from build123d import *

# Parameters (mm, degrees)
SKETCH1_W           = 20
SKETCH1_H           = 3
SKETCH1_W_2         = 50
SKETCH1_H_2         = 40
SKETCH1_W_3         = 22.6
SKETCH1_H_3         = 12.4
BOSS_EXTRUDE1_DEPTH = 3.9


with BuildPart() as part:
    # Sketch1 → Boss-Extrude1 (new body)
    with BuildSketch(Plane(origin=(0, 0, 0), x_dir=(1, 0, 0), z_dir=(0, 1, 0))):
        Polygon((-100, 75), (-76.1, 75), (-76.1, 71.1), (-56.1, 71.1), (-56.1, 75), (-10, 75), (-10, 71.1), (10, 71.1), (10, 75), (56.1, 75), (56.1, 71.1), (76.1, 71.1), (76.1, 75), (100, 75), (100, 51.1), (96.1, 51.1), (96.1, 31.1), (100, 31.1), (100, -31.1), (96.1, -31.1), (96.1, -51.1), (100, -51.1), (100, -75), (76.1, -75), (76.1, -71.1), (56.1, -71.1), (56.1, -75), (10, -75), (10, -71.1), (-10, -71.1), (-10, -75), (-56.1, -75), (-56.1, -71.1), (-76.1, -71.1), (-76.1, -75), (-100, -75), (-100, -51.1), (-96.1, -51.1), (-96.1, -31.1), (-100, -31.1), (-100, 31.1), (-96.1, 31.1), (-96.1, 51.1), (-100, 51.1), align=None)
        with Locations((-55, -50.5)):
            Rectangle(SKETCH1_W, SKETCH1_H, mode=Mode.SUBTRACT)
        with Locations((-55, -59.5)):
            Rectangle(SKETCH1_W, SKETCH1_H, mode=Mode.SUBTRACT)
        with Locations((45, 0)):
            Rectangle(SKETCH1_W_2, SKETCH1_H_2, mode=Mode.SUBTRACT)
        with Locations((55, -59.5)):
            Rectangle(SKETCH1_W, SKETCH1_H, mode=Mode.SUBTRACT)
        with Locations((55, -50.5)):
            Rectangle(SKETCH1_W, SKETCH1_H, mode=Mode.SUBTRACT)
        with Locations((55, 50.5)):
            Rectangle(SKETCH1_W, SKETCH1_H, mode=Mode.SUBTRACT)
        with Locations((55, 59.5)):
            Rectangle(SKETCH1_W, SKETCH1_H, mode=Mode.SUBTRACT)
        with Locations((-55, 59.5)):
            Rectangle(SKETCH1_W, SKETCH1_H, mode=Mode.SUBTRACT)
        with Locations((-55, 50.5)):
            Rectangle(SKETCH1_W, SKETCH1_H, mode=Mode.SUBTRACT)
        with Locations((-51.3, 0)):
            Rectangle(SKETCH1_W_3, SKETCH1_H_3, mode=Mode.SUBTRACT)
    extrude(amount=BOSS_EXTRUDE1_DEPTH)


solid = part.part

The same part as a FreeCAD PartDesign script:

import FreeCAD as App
import Part
import Sketcher
from FreeCAD import Vector


def add_polygon(sketch, points):
    """Adds a closed chain of lines whose ends are joined by coincident constraints."""
    first, n = sketch.GeometryCount, len(points)
    for a, b in zip(points, points[1:] + points[:1]):
        sketch.addGeometry(Part.LineSegment(App.Vector(*a, 0), App.Vector(*b, 0)), False)
    for i in range(n):
        sketch.addConstraint(Sketcher.Constraint("Coincident", first + i, 2, first + (i + 1) % n, 1))

doc = App.newDocument("Part")
params = doc.addObject("Spreadsheet::Sheet", "Params")
for row, (alias, value) in enumerate([
    ("sketch1_width", "20 mm"),
    ("sketch1_width2", "50 mm"),
    ("sketch1_height", "3 mm"),
    ("sketch1_height2", "40 mm"),
    ("sketch1_width3", "23.9 mm"),
    ("pad1_length", "3.9 mm"),
], start=1):
    params.set(f"A{row}", alias)
    params.set(f"B{row}", "=" + value)
    params.setAlias(f"B{row}", alias)

body = doc.addObject("PartDesign::Body", "Body")

# Sketch on XZ plane
sketch1 = doc.addObject("Sketcher::SketchObject", "Sketch")
body.addObject(sketch1)
sketch1.AttachmentSupport = (doc.XZ_Plane, [""])
sketch1.MapMode = "FlatFace"
add_polygon(sketch1, [(-76.1, -75), (-100, -75), (-100, -51.1), (-96.1, -51.1), (-96.1, -31.1), (-100, -31.1), (-100, 31.1), (-96.1, 31.1), (-96.1, 51.1), (-100, 51.1), (-100, 75), (-76.1, 75), (-76.1, 71.1), (-56.1, 71.1), (-56.1, 75), (-10, 75), (-10, 71.1), (10, 71.1), (10, 75), (56.1, 75), (56.1, 71.1), (76.1, 71.1), (76.1, 75), (100, 75), (100, 51.1), (96.1, 51.1), (96.1, 31.1), (100, 31.1), (100, -31.1), (96.1, -31.1), (96.1, -51.1), (100, -51.1), (100, -75), (76.1, -75), (76.1, -71.1), (56.1, -71.1), (56.1, -75), (10, -75), (10, -71.1), (-10, -71.1), (-10, -75), (-56.1, -75), (-56.1, -71.1), (-76.1, -71.1)])  # lines 0-43
add_polygon(sketch1, [(45, 61), (45, 58), (65, 58), (65, 61)])  # lines 44-47
add_polygon(sketch1, [(45, 52), (45, 49), (65, 49), (65, 52)])  # lines 48-51
add_polygon(sketch1, [(-65, 61), (-65, 58), (-45, 58), (-45, 61)])  # lines 52-55
add_polygon(sketch1, [(-65, 52), (-65, 49), (-45, 49), (-45, 52)])  # lines 56-59
add_polygon(sketch1, [(20, 20), (20, -20), (70, -20), (70, 20)])  # lines 60-63
add_polygon(sketch1, [(45, -49), (45, -52), (65, -52), (65, -49)])  # lines 64-67
add_polygon(sketch1, [(45, -58), (45, -61), (65, -61), (65, -58)])  # lines 68-71
add_polygon(sketch1, [(-62.6, 6.2), (-62.6, -6.2), (-40, -6.2), (-40, 6.2)])  # lines 72-75
add_polygon(sketch1, [(-65, -49), (-65, -52), (-45, -52), (-45, -49)])  # lines 76-79
add_polygon(sketch1, [(-65, -58), (-65, -61), (-45, -61), (-45, -58)])  # lines 80-83
sketch1.addConstraint([
    Sketcher.Constraint("Horizontal", 0),
    Sketcher.Constraint("Vertical", 1),
    Sketcher.Constraint("Horizontal", 2),
    Sketcher.Constraint("Vertical", 3),
    Sketcher.Constraint("Horizontal", 4),
    Sketcher.Constraint("Vertical", 5),
    Sketcher.Constraint("Horizontal", 6),
    Sketcher.Constraint("Vertical", 7),
    Sketcher.Constraint("Horizontal", 8),
    Sketcher.Constraint("Vertical", 9),
    Sketcher.Constraint("Horizontal", 10),
    Sketcher.Constraint("Vertical", 11),
    Sketcher.Constraint("Horizontal", 12),
    Sketcher.Constraint("Vertical", 13),
    Sketcher.Constraint("Horizontal", 14),
    Sketcher.Constraint("Vertical", 15),
    Sketcher.Constraint("Horizontal", 16),
    Sketcher.Constraint("Vertical", 17),
    Sketcher.Constraint("Horizontal", 18),
    Sketcher.Constraint("Vertical", 19),
    Sketcher.Constraint("Horizontal", 20),
    Sketcher.Constraint("Vertical", 21),
    Sketcher.Constraint("Horizontal", 22),
    Sketcher.Constraint("Vertical", 23),
    Sketcher.Constraint("Horizontal", 24),
    Sketcher.Constraint("Vertical", 25),
    Sketcher.Constraint("Horizontal", 26),
    Sketcher.Constraint("Vertical", 27),
    Sketcher.Constraint("Horizontal", 28),
    Sketcher.Constraint("Vertical", 29),
    Sketcher.Constraint("Horizontal", 30),
    Sketcher.Constraint("Vertical", 31),
    Sketcher.Constraint("Horizontal", 32),
    Sketcher.Constraint("Vertical", 33),
    Sketcher.Constraint("Horizontal", 34),
    Sketcher.Constraint("Vertical", 35),
    Sketcher.Constraint("Horizontal", 36),
    Sketcher.Constraint("Vertical", 37),
    Sketcher.Constraint("Horizontal", 38),
    Sketcher.Constraint("Vertical", 39),
    Sketcher.Constraint("Horizontal", 40),
    Sketcher.Constraint("Vertical", 41),
    Sketcher.Constraint("Horizontal", 42),
    Sketcher.Constraint("Vertical", 43),
    Sketcher.Constraint("Vertical", 44),
    Sketcher.Constraint("Horizontal", 45),
    Sketcher.Constraint("Vertical", 46),
    Sketcher.Constraint("Horizontal", 47),
    Sketcher.Constraint("Vertical", 48),
    Sketcher.Constraint("Horizontal", 49),
    Sketcher.Constraint("Vertical", 50),
    Sketcher.Constraint("Horizontal", 51),
    Sketcher.Constraint("Vertical", 52),
    Sketcher.Constraint("Horizontal", 53),
    Sketcher.Constraint("Vertical", 54),
    Sketcher.Constraint("Horizontal", 55),
    Sketcher.Constraint("Vertical", 56),
    Sketcher.Constraint("Horizontal", 57),
    Sketcher.Constraint("Vertical", 58),
    Sketcher.Constraint("Horizontal", 59),
    Sketcher.Constraint("Vertical", 60),
    Sketcher.Constraint("Horizontal", 61),
    Sketcher.Constraint("Vertical", 62),
    Sketcher.Constraint("Horizontal", 63),
    Sketcher.Constraint("Vertical", 64),
    Sketcher.Constraint("Horizontal", 65),
    Sketcher.Constraint("Vertical", 66),
    Sketcher.Constraint("Horizontal", 67),
    Sketcher.Constraint("Vertical", 68),
    Sketcher.Constraint("Horizontal", 69),
    Sketcher.Constraint("Vertical", 70),
    Sketcher.Constraint("Horizontal", 71),
    Sketcher.Constraint("Vertical", 72),
    Sketcher.Constraint("Horizontal", 73),
    Sketcher.Constraint("Vertical", 74),
    Sketcher.Constraint("Horizontal", 75),
    Sketcher.Constraint("Vertical", 76),
    Sketcher.Constraint("Horizontal", 77),
    Sketcher.Constraint("Vertical", 78),
    Sketcher.Constraint("Horizontal", 79),
    Sketcher.Constraint("Vertical", 80),
    Sketcher.Constraint("Horizontal", 81),
    Sketcher.Constraint("Vertical", 82),
    Sketcher.Constraint("Horizontal", 83),
    Sketcher.Constraint("Symmetric", 0, 2, 22, 2, -1, 1),
    Sketcher.Constraint("Symmetric", 2, 2, 24, 2, -1, 1),
    Sketcher.Constraint("Symmetric", 4, 2, 26, 2, -1, 1),
    Sketcher.Constraint("Symmetric", 6, 2, 28, 2, -1, 1),
    Sketcher.Constraint("Symmetric", 8, 2, 30, 2, -1, 1),
    Sketcher.Constraint("Symmetric", 10, 2, 32, 2, -1, 1),
    Sketcher.Constraint("Symmetric", 12, 2, 34, 2, -1, 1),
    Sketcher.Constraint("Symmetric", 14, 2, 36, 2, -1, 1),
    Sketcher.Constraint("Symmetric", 16, 2, 38, 2, -1, 1),
    Sketcher.Constraint("Symmetric", 18, 2, 40, 2, -1, 1),
    Sketcher.Constraint("Symmetric", 20, 2, 42, 2, -1, 1),
    Sketcher.Constraint("Symmetric", 58, 2, 64, 2, -1, 1),
    Sketcher.Constraint("Symmetric", 56, 2, 66, 2, -1, 1),
    Sketcher.Constraint("Symmetric", 54, 2, 68, 2, -1, 1),
    Sketcher.Constraint("Symmetric", 52, 2, 70, 2, -1, 1),
    Sketcher.Constraint("Symmetric", 50, 2, 76, 2, -1, 1),
    Sketcher.Constraint("Symmetric", 48, 2, 78, 2, -1, 1),
    Sketcher.Constraint("Symmetric", 46, 2, 80, 2, -1, 1),
    Sketcher.Constraint("Symmetric", 44, 2, 82, 2, -1, 1),
    Sketcher.Constraint("Symmetric", 14, 2, 17, 2, -2),
    Sketcher.Constraint("Symmetric", 12, 2, 19, 2, -2),
    Sketcher.Constraint("Symmetric", 10, 2, 21, 2, -2),
    Sketcher.Constraint("Symmetric", 8, 2, 23, 2, -2),
    Sketcher.Constraint("Symmetric", 6, 2, 25, 2, -2),
    Sketcher.Constraint("Symmetric", 45, 2, 52, 2, -2),
    Sketcher.Constraint("Symmetric", 47, 2, 54, 2, -2),
    Sketcher.Constraint("Symmetric", 49, 2, 56, 2, -2),
    Sketcher.Constraint("Symmetric", 51, 2, 58, 2, -2),
    Sketcher.Constraint("Horizontal", 10, 2, 13, 2),
    Sketcher.Constraint("Horizontal", 12, 2, 15, 2),
    Sketcher.Constraint("Vertical", 1, 2, 4, 2),
    Sketcher.Constraint("Vertical", 47, 2, 48, 2),
    Sketcher.Constraint("Vertical", 46, 2, 49, 2),
    Sketcher.Constraint("Equal", 12, 16),
    Sketcher.Constraint("Equal", 42, 45),
    Sketcher.Constraint("Equal", 32, 1),
    Sketcher.Constraint("Equal", 83, 3),
    Sketcher.Constraint("Equal", 30, 11),
    Sketcher.Constraint("Equal", 46, 48),
    Sketcher.Constraint("DistanceX", 12, 1, 12, 2, 20.0),
    Sketcher.Constraint("DistanceX", 61, 1, 61, 2, 50.0),
    Sketcher.Constraint("DistanceY", 44, 2, 44, 1, 3.0),
    Sketcher.Constraint("DistanceY", 60, 2, 60, 1, 40.0),
    Sketcher.Constraint("DistanceX", 0, 2, 0, 1, 23.9),
    Sketcher.Constraint("DistanceX", 2, 1, 2, 2, 3.9),
    Sketcher.Constraint("DistanceX", 14, 1, 14, 2, 46.1),
    Sketcher.Constraint("DistanceX", 73, 1, 73, 2, 22.6),
    Sketcher.Constraint("DistanceY", 5, 1, 5, 2, 62.2),
    Sketcher.Constraint("DistanceY", 72, 2, 72, 1, 12.4),
    Sketcher.Constraint("DistanceX", -1, 1, 44, 2, 45.0),
    Sketcher.Constraint("DistanceY", -1, 1, 44, 2, 58.0),
    Sketcher.Constraint("DistanceY", -1, 1, 48, 2, 49.0),
    Sketcher.Constraint("DistanceX", -1, 1, 60, 2, 20.0),
    Sketcher.Constraint("DistanceY", 60, 2, -1, 1, 20.0),
    Sketcher.Constraint("DistanceX", 73, 2, -1, 1, 40.0),
    Sketcher.Constraint("DistanceY", 72, 2, -1, 1, 6.2),
])
sketch1.setExpression("Constraints[207]", "Params.sketch1_width")
sketch1.setExpression("Constraints[208]", "Params.sketch1_width2")
sketch1.setExpression("Constraints[209]", "Params.sketch1_height")
sketch1.setExpression("Constraints[210]", "Params.sketch1_height2")
sketch1.setExpression("Constraints[211]", "Params.sketch1_width3")
pad1 = doc.addObject("PartDesign::Pad", "Pad")
body.addObject(pad1)
pad1.Profile = sketch1
pad1.setExpression("Length", "Params.pad1_length")
pad1.Reversed = True

doc.recompute()
